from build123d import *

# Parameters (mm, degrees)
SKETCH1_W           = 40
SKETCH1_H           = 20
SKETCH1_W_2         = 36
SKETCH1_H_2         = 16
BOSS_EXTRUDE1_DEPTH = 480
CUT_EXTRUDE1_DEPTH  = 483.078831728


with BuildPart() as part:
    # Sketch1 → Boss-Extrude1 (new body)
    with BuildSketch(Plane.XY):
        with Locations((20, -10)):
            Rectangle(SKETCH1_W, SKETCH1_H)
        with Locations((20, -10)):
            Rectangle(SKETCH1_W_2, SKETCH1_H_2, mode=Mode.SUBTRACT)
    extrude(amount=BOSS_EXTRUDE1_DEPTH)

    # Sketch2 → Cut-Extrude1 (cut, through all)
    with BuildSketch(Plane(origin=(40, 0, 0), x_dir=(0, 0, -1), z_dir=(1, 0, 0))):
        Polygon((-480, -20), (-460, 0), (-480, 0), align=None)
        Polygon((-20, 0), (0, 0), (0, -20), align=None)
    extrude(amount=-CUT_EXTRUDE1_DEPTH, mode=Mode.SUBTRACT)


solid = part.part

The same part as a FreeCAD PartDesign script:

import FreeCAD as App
import Part
import Sketcher


def add_polygon(sketch, points):
    """Adds a closed chain of lines whose ends are joined by coincident constraints."""
    first, n = sketch.GeometryCount, len(points)
    for a, b in zip(points, points[1:] + points[:1]):
        sketch.addGeometry(Part.LineSegment(App.Vector(*a, 0), App.Vector(*b, 0)), False)
    for i in range(n):
        sketch.addConstraint(Sketcher.Constraint("Coincident", first + i, 2, first + (i + 1) % n, 1))

doc = App.newDocument("Part")
params = doc.addObject("Spreadsheet::Sheet", "Params")
for row, (alias, value) in enumerate([
    ("sketch1_width", "40 mm"),
    ("sketch1_width2", "36 mm"),
    ("sketch1_height", "20 mm"),
    ("sketch1_height2", "16 mm"),
    ("pad1_length", "480 mm"),
    ("sketch2_width", "20 mm"),
], start=1):
    params.set(f"A{row}", alias)
    params.set(f"B{row}", "=" + value)
    params.setAlias(f"B{row}", alias)

body = doc.addObject("PartDesign::Body", "Body")

# Sketch on XY plane
sketch1 = doc.addObject("Sketcher::SketchObject", "Sketch")
body.addObject(sketch1)
sketch1.AttachmentSupport = (doc.XY_Plane, [""])
sketch1.MapMode = "FlatFace"
add_polygon(sketch1, [(0, 0), (0, -20), (40, -20), (40, 0)])  # lines 0-3
add_polygon(sketch1, [(38, -18), (2, -18), (2, -2), (38, -2)])  # lines 4-7
sketch1.addConstraint(Sketcher.Constraint("Vertical", 0))
sketch1.addConstraint(Sketcher.Constraint("Horizontal", 1))
sketch1.addConstraint(Sketcher.Constraint("Vertical", 2))
sketch1.addConstraint(Sketcher.Constraint("Horizontal", 3))
sketch1.addConstraint(Sketcher.Constraint("Horizontal", 4))
sketch1.addConstraint(Sketcher.Constraint("Vertical", 5))
sketch1.addConstraint(Sketcher.Constraint("Horizontal", 6))
sketch1.addConstraint(Sketcher.Constraint("Vertical", 7))
sketch1.addConstraint(Sketcher.Constraint("Coincident", 3, 2, -1, 1))
sketch1.addConstraint(Sketcher.Constraint("DistanceX", 1, 1, 1, 2, 40.0))
sketch1.addConstraint(Sketcher.Constraint("DistanceX", 4, 2, 4, 1, 36.0))
sketch1.addConstraint(Sketcher.Constraint("DistanceY", 0, 2, 0, 1, 20.0))
sketch1.addConstraint(Sketcher.Constraint("DistanceY", 5, 1, 5, 2, 16.0))
sketch1.addConstraint(Sketcher.Constraint("DistanceX", -1, 1, 4, 2, 2.0))
sketch1.addConstraint(Sketcher.Constraint("DistanceY", 4, 2, -1, 1, 18.0))
sketch1.setExpression("Constraints[17]", "Params.sketch1_width")
sketch1.setExpression("Constraints[18]", "Params.sketch1_width2")
sketch1.setExpression("Constraints[19]", "Params.sketch1_height")
sketch1.setExpression("Constraints[20]", "Params.sketch1_height2")
pad1 = doc.addObject("PartDesign::Pad", "Pad")
body.addObject(pad1)
pad1.Profile = sketch1
pad1.setExpression("Length", "Params.pad1_length")

# Sketch on YZ plane
sketch2 = doc.addObject("Sketcher::SketchObject", "Sketch001")
body.addObject(sketch2)
sketch2.AttachmentSupport = (doc.YZ_Plane, [""])
sketch2.MapMode = "FlatFace"
sketch2.AttachmentOffset = App.Placement(App.Vector(0, 0, 40), App.Rotation())
add_polygon(sketch2, [(-20, 480), (0, 460), (0, 480)])  # lines 0-2
add_polygon(sketch2, [(0, 0), (0, 20), (-20, 0)])  # lines 3-5
sketch2.addConstraint(Sketcher.Constraint("Vertical", 1))
sketch2.addConstraint(Sketcher.Constraint("Horizontal", 2))
sketch2.addConstraint(Sketcher.Constraint("Vertical", 3))
sketch2.addConstraint(Sketcher.Constraint("Horizontal", 5))
sketch2.addConstraint(Sketcher.Constraint("Coincident", 5, 2, -1, 1))
sketch2.addConstraint(Sketcher.Constraint("PointOnObject", 0, 2, -2))
sketch2.addConstraint(Sketcher.Constraint("Perpendicular", 0, 4))
sketch2.addConstraint(Sketcher.Constraint("Vertical", 2, 2, 4, 2))
sketch2.addConstraint(Sketcher.Constraint("Equal", 5, 1))
sketch2.addConstraint(Sketcher.Constraint("DistanceX", 2, 2, 2, 1, 20.0))
sketch2.addConstraint(Sketcher.Constraint("DistanceY", -1, 1, 0, 2, 460.0))
sketch2.setExpression("Constraints[15]", "Params.sketch2_width")
pocket1 = doc.addObject("PartDesign::Pocket", "Pocket")
body.addObject(pocket1)
pocket1.Profile = sketch2
pocket1.Type = "ThroughAll"

doc.recompute()
